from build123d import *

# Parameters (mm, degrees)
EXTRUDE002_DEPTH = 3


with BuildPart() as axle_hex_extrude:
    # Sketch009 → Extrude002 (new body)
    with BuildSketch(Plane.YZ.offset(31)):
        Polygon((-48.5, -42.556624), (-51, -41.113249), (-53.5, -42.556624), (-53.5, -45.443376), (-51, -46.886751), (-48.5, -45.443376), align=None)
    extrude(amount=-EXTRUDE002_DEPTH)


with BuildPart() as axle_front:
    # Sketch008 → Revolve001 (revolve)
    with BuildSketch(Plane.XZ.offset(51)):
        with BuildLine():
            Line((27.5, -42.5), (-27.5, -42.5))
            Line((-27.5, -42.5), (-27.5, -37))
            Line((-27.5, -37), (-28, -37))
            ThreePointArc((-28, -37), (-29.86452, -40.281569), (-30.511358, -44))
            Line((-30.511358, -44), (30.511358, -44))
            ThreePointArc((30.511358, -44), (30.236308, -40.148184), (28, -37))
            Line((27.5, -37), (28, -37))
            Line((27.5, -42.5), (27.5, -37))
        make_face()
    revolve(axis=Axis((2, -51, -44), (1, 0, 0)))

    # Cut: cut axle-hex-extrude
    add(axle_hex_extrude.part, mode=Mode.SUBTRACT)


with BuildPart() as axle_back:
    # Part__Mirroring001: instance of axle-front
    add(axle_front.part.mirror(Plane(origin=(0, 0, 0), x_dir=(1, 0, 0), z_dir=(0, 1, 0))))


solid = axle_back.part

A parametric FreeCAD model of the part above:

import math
import FreeCAD as App
import Part
import Sketcher

V = App.Vector
Q = App.Units.Quantity

doc = App.newDocument("Part")
params = doc.addObject("Spreadsheet::Sheet", "Params")
for row, (alias, value) in enumerate([
    ("pad1_length", "3 mm"),
    ("sketch2_width", "55 mm"),
    ("sketch2_width2", "0.5 mm"),
    ("sketch2_height", "5.5 mm"),
    ("revolution_angle", "360 deg"),
], start=1):
    params.set(f"A{row}", alias)
    params.set(f"B{row}", "=" + value)
    params.setAlias(f"B{row}", alias)

body = doc.addObject("PartDesign::Body", "Body")

# Sketch on YZ plane
sketch1 = body.newObject("Sketcher::SketchObject", "Sketch")
sketch1.AttachmentSupport = (doc.getObject("YZ_Plane"), [""])
sketch1.MapMode = "FlatFace"
sketch1.AttachmentOffset = App.Placement(V(0, 0, 31), App.Rotation())
sketch1.addGeometry([
    Part.LineSegment(V(-48.5, -42.6, 0), V(-51, -41.1, 0)),  # 0
    Part.LineSegment(V(-51, -41.1, 0), V(-53.5, -42.6, 0)),  # 1
    Part.LineSegment(V(-53.5, -42.6, 0), V(-53.5, -45.4, 0)),  # 2
    Part.LineSegment(V(-53.5, -45.4, 0), V(-51, -46.9, 0)),  # 3
    Part.LineSegment(V(-51, -46.9, 0), V(-48.5, -45.4, 0)),  # 4
    Part.LineSegment(V(-48.5, -45.4, 0), V(-48.5, -42.6, 0)),  # 5
], False)
sketch1.addConstraint([
    Sketcher.Constraint("Coincident", 0, 2, 1, 1),
    Sketcher.Constraint("Coincident", 1, 2, 2, 1),
    Sketcher.Constraint("Coincident", 2, 2, 3, 1),
    Sketcher.Constraint("Coincident", 3, 2, 4, 1),
    Sketcher.Constraint("Coincident", 4, 2, 5, 1),
    Sketcher.Constraint("Coincident", 5, 2, 0, 1),
    Sketcher.Constraint("Vertical", 2),
    Sketcher.Constraint("Vertical", 5),
    Sketcher.Constraint("Parallel", 0, 3),
    Sketcher.Constraint("Parallel", 1, 4),
    Sketcher.Constraint("Horizontal", 2, 2, 4, 2),
    Sketcher.Constraint("Horizontal", 1, 2, 5, 2),
    Sketcher.Constraint("Vertical", 0, 2, 3, 2),
    Sketcher.Constraint("Angle", 0, Q("150.000012 deg")),
    Sketcher.Constraint("DistanceX", 0, 2, -1, 1, Q("51 mm")),
    Sketcher.Constraint("DistanceX", 2, 2, 4, 2, Q("5 mm")),
    Sketcher.Constraint("DistanceY", 3, 2, 0, 2, Q("5.773502 mm")),
    Sketcher.Constraint("DistanceY", 0, 2, -1, 1, Q("41.113249 mm")),
])
pad1 = body.newObject("PartDesign::Pad", "Pad")
pad1.Profile = sketch1
pad1.setExpression("Length", "Params.pad1_length")
pad1.Reversed = True
body2 = doc.addObject("PartDesign::Body", "Body001")

# Sketch on XZ plane
sketch2 = body2.newObject("Sketcher::SketchObject", "Sketch001")
sketch2.AttachmentSupport = (doc.getObject("XZ_Plane001"), [""])
sketch2.MapMode = "FlatFace"
sketch2.AttachmentOffset = App.Placement(V(0, 0, 51), App.Rotation())
sketch2.addGeometry([
    Part.LineSegment(V(27.5, -42.5, 0), V(-27.5, -42.5, 0)),  # 0
    Part.LineSegment(V(-27.5, -42.5, 0), V(-27.5, -37, 0)),  # 1
    Part.LineSegment(V(-27.5, -37, 0), V(-28, -37, 0)),  # 2
    Part.ArcOfCircle(Part.Circle(V(-19.5, -44, 0), V(0, 0, 1), 11), math.radians(141), math.radians(180)),  # 3
    Part.LineSegment(V(-30.5, -44, 0), V(30.5, -44, 0)),  # 4
    Part.ArcOfCircle(Part.Circle(V(23.5, -42.6, 0), V(0, 0, 1), 7.2), math.radians(-12), math.radians(51)),  # 5
    Part.LineSegment(V(28, -37, 0), V(27.5, -37, 0)),  # 6
    Part.LineSegment(V(27.5, -37, 0), V(27.5, -42.5, 0)),  # 7
], False)
sketch2.addGeometry(Part.LineSegment(V(-30.5, -44, 0), V(30.5, -44, 0)), True)  # axis
sketch2.addConstraint([
    Sketcher.Constraint("Coincident", 0, 2, 1, 1),
    Sketcher.Constraint("Coincident", 1, 2, 2, 1),
    Sketcher.Constraint("Coincident", 2, 2, 3, 1),
    Sketcher.Constraint("Coincident", 3, 2, 4, 1),
    Sketcher.Constraint("Coincident", 4, 2, 5, 1),
    Sketcher.Constraint("Coincident", 5, 2, 6, 1),
    Sketcher.Constraint("Coincident", 6, 2, 7, 1),
    Sketcher.Constraint("Coincident", 7, 2, 0, 1),
    Sketcher.Constraint("Horizontal", 0),
    Sketcher.Constraint("Vertical", 1),
    Sketcher.Constraint("Horizontal", 2),
    Sketcher.Constraint("Horizontal", 4),
    Sketcher.Constraint("Horizontal", 6),
    Sketcher.Constraint("Vertical", 7),
    Sketcher.Constraint("Horizontal", 8),
    Sketcher.Constraint("Coincident", 8, 1, 3, 2),
    Sketcher.Constraint("Symmetric", 2, 2, 5, 2, -2),
    Sketcher.Constraint("Equal", 2, 6),
    Sketcher.Constraint("Equal", 4, 8),
    Sketcher.Constraint("DistanceX", 0, 2, 0, 1, Q("55 mm")),
    Sketcher.Constraint("DistanceX", 2, 2, 2, 1, Q("0.5 mm")),
    Sketcher.Constraint("DistanceY", 1, 1, 1, 2, Q("5.5 mm")),
    Sketcher.Constraint("DistanceY", 3, 3, -1, 1, Q("44 mm")),
    Sketcher.Constraint("DistanceY", 1, 2, -1, 1, Q("37 mm")),
    Sketcher.Constraint("DistanceY", 3, 2, -1, 1, Q("44 mm")),
    Sketcher.Constraint("DistanceX", 0, 2, 3, 3, Q("7.999999 mm")),
    Sketcher.Constraint("Radius", 5, Q("7.15671 mm")),
    Sketcher.Constraint("DistanceX", 4, 1, 4, 2, Q("61.022716 mm")),
])
sketch2.setExpression("Constraints[19]", "Params.sketch2_width")
sketch2.setExpression("Constraints[20]", "Params.sketch2_width2")
sketch2.setExpression("Constraints[21]", "Params.sketch2_height")
revolution = body2.newObject("PartDesign::Revolution", "Revolution")
revolution.Profile = sketch2
revolution.ReferenceAxis = (sketch2, ["Axis0"])
revolution.setExpression("Angle", "Params.revolution_angle")
doc.recompute()

boolean = body2.newObject("PartDesign::Boolean", "Boolean")
boolean.Type = "Cut"
boolean.addObjects([body])
body3 = doc.addObject("PartDesign::Body", "Body002")
doc.recompute()

mirroring = doc.addObject("Part::Mirroring", "Mirroring")
mirroring.Source = body2
mirroring.Base = V(0, 0, 0)
mirroring.Normal = V(0, 1, 0)
body3.BaseFeature = mirroring
doc.recompute()
body2.Visibility = False
mirroring.Visibility = False

doc.recompute()
